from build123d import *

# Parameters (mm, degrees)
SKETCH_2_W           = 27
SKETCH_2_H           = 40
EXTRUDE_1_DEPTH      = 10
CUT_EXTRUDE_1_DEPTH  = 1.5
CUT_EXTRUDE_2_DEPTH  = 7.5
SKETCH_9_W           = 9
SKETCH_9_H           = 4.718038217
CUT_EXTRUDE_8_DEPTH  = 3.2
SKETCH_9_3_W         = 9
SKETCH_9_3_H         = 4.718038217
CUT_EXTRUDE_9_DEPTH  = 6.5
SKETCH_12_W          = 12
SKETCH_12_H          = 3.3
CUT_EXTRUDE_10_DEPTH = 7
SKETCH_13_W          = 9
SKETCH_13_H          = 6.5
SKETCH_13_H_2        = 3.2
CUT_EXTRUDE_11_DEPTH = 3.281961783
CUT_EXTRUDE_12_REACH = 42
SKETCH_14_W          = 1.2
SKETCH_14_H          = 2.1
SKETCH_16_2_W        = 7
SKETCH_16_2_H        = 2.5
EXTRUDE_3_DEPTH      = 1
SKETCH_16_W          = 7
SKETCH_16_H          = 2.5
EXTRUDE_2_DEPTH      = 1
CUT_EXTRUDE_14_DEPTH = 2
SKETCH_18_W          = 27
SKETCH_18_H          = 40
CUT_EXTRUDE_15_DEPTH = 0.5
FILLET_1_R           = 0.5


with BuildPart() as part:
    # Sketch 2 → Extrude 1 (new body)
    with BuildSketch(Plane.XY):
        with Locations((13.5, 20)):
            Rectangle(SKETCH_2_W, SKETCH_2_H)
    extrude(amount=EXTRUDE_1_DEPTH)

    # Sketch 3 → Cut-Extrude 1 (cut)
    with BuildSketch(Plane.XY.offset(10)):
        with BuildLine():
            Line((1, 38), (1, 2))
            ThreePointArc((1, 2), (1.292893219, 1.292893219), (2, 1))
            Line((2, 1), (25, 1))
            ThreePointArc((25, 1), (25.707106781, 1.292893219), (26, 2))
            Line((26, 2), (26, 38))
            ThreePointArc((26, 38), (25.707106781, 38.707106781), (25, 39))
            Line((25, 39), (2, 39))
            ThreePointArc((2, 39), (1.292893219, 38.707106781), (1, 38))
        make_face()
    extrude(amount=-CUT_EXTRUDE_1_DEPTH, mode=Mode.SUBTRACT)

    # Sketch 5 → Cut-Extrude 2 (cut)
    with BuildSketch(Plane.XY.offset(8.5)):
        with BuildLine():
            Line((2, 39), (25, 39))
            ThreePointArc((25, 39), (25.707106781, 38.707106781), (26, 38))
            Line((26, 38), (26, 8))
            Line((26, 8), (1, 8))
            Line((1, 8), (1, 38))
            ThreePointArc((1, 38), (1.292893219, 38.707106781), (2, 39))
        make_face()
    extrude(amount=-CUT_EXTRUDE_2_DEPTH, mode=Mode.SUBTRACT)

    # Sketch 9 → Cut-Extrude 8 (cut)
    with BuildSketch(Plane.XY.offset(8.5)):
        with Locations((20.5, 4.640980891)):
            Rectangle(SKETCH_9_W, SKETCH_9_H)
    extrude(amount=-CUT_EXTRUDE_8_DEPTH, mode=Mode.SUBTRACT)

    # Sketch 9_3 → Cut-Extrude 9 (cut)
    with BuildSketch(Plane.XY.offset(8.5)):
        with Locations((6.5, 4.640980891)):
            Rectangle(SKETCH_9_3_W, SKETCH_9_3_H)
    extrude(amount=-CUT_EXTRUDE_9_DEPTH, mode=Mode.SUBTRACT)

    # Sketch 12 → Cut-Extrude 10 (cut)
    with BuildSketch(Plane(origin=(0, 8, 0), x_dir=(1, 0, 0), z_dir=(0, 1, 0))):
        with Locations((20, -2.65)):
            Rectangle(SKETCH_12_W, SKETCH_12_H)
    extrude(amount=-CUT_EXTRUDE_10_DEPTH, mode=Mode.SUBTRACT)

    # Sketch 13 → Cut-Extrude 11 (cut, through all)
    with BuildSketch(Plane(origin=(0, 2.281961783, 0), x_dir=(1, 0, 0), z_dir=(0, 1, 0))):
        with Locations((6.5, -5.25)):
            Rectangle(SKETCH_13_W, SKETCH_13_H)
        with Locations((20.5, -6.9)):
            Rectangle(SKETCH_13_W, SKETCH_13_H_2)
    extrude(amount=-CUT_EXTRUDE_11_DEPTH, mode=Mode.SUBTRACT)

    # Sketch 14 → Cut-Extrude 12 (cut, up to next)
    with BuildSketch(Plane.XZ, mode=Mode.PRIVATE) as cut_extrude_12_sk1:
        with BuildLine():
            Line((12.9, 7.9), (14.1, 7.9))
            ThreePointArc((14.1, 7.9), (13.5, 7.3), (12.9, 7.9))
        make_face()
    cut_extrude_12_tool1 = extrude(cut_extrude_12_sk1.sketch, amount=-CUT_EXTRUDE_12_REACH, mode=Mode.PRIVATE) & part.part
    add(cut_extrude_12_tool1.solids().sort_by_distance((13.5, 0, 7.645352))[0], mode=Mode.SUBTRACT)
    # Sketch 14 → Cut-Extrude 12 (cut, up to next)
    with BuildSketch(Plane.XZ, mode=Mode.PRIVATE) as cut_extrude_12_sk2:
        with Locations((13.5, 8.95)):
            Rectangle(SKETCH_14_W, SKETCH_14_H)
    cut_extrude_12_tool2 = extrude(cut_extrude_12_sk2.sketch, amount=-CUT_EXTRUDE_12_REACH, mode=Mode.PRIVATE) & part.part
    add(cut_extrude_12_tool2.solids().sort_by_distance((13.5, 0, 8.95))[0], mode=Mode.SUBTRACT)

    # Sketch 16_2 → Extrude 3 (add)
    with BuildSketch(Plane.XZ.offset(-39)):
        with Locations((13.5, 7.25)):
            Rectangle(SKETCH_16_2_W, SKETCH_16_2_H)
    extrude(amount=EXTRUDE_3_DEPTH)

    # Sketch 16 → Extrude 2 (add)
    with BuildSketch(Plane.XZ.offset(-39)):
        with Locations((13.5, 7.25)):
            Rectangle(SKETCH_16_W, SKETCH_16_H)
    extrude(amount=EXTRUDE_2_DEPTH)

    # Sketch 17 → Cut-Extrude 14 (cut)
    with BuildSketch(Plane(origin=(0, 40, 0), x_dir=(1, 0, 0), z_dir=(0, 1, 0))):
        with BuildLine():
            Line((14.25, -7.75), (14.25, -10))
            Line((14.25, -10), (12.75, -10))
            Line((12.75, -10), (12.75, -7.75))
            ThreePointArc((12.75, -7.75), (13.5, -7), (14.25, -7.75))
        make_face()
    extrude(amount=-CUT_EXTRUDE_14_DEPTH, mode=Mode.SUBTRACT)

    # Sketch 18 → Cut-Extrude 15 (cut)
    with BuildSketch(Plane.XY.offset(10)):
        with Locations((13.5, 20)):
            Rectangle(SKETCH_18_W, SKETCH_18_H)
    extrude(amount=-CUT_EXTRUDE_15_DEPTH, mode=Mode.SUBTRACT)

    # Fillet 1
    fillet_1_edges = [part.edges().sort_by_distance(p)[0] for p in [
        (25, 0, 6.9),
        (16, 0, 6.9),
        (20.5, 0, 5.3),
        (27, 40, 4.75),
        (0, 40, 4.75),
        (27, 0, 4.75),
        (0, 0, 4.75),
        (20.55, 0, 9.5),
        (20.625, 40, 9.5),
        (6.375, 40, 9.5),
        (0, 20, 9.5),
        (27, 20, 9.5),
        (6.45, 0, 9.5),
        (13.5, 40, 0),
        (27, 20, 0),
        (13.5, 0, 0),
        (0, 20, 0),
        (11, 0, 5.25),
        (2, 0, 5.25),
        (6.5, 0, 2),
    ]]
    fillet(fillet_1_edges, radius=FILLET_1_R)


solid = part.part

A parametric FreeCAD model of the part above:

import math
import FreeCAD as App
import Part
import Sketcher
Q = App.Units.Quantity


def edges_at(feature, points):
    """Names of the edges that pass closest to the given points."""
    edges = feature.Shape.Edges
    near = lambda p: min(range(len(edges)), key=lambda i: edges[i].distToShape(Part.Vertex(*p))[0])
    return sorted({f"Edge{near(p) + 1}" for p in points})

doc = App.newDocument("Part")
body = doc.addObject("PartDesign::Body", "Body")

# Sketch on XY plane
sketch1 = doc.addObject("Sketcher::SketchObject", "Sketch")
body.addObject(sketch1)
sketch1.AttachmentSupport = (doc.XY_Plane, [""])
sketch1.MapMode = "FlatFace"
sketch1.addGeometry([
    Part.LineSegment(App.Vector(0, 40, 0), App.Vector(0, 0, 0)),
    Part.LineSegment(App.Vector(0, 0, 0), App.Vector(27, 0, 0)),
    Part.LineSegment(App.Vector(27, 0, 0), App.Vector(27, 40, 0)),
    Part.LineSegment(App.Vector(27, 40, 0), App.Vector(0, 40, 0)),
], False)
sketch1.addConstraint([
    Sketcher.Constraint("Coincident", 0, 2, 1, 1),
    Sketcher.Constraint("Coincident", 1, 2, 2, 1),
    Sketcher.Constraint("Coincident", 2, 2, 3, 1),
    Sketcher.Constraint("Coincident", 3, 2, 0, 1),
    Sketcher.Constraint("Vertical", 0),
    Sketcher.Constraint("Horizontal", 1),
    Sketcher.Constraint("Vertical", 2),
    Sketcher.Constraint("Horizontal", 3),
    Sketcher.Constraint("Coincident", 0, 2, -1, 1),
    Sketcher.Constraint("DistanceX", 1, 1, 1, 2, Q("27 mm")),
    Sketcher.Constraint("DistanceY", 0, 2, 0, 1, Q("40 mm")),
])
pad1 = doc.addObject("PartDesign::Pad", "Pad")
body.addObject(pad1)
pad1.Profile = sketch1
pad1.Length = 10

# Sketch on XY plane
sketch2 = doc.addObject("Sketcher::SketchObject", "Sketch001")
body.addObject(sketch2)
sketch2.AttachmentSupport = (doc.XY_Plane, [""])
sketch2.MapMode = "FlatFace"
sketch2.AttachmentOffset = App.Placement(App.Vector(0, 0, 10), App.Rotation())
sketch2.addGeometry([
    Part.LineSegment(App.Vector(1, 38, 0), App.Vector(1, 2, 0)),  # 0
    Part.ArcOfCircle(Part.Circle(App.Vector(2, 2, 0), App.Vector(0, 0, 1), 1), math.radians(-180), math.radians(-90)),  # 1
    Part.LineSegment(App.Vector(2, 1, 0), App.Vector(25, 1, 0)),  # 2
    Part.ArcOfCircle(Part.Circle(App.Vector(25, 2, 0), App.Vector(0, 0, 1), 1), math.radians(-90), math.radians(0)),  # 3
    Part.LineSegment(App.Vector(26, 2, 0), App.Vector(26, 38, 0)),  # 4
    Part.ArcOfCircle(Part.Circle(App.Vector(25, 38, 0), App.Vector(0, 0, 1), 1), math.radians(0), math.radians(90)),  # 5
    Part.LineSegment(App.Vector(25, 39, 0), App.Vector(2, 39, 0)),  # 6
    Part.ArcOfCircle(Part.Circle(App.Vector(2, 38, 0), App.Vector(0, 0, 1), 1), math.radians(90), math.radians(180)),  # 7
], False)
sketch2.addConstraint([
    Sketcher.Constraint("Tangent", 0, 2, 1, 1),
    Sketcher.Constraint("Tangent", 1, 2, 2, 1),
    Sketcher.Constraint("Tangent", 2, 2, 3, 1),
    Sketcher.Constraint("Tangent", 3, 2, 4, 1),
    Sketcher.Constraint("Tangent", 4, 2, 5, 1),
    Sketcher.Constraint("Tangent", 5, 2, 6, 1),
    Sketcher.Constraint("Tangent", 6, 2, 7, 1),
    Sketcher.Constraint("Tangent", 7, 2, 0, 1),
    Sketcher.Constraint("Vertical", 0),
    Sketcher.Constraint("Horizontal", 2),
    Sketcher.Constraint("Vertical", 4),
    Sketcher.Constraint("Horizontal", 6),
    Sketcher.Constraint("Equal", 1, 3),
    Sketcher.Constraint("Equal", 3, 5),
    Sketcher.Constraint("Equal", 5, 7),
    Sketcher.Constraint("Radius", 1, Q("1 mm")),
    Sketcher.Constraint("DistanceX", 2, 1, 2, 2, Q("23 mm")),
    Sketcher.Constraint("DistanceY", 0, 2, 0, 1, Q("36 mm")),
    Sketcher.Constraint("DistanceX", -1, 1, 1, 3, Q("2 mm")),
    Sketcher.Constraint("DistanceY", -1, 1, 1, 3, Q("2 mm")),
])
pocket1 = doc.addObject("PartDesign::Pocket", "Pocket")
body.addObject(pocket1)
pocket1.Profile = sketch2
pocket1.Length = 1.5

# Sketch on XY plane
sketch3 = doc.addObject("Sketcher::SketchObject", "Sketch002")
body.addObject(sketch3)
sketch3.AttachmentSupport = (doc.XY_Plane, [""])
sketch3.MapMode = "FlatFace"
sketch3.AttachmentOffset = App.Placement(App.Vector(0, 0, 8.5), App.Rotation())
sketch3.addGeometry([
    Part.LineSegment(App.Vector(25, 39, 0), App.Vector(2, 39, 0)),  # 0
    Part.ArcOfCircle(Part.Circle(App.Vector(2, 38, 0), App.Vector(0, 0, 1), 1), math.radians(90), math.radians(180)),  # 1
    Part.LineSegment(App.Vector(1, 38, 0), App.Vector(1, 8, 0)),  # 2
    Part.LineSegment(App.Vector(1, 8, 0), App.Vector(26, 8, 0)),  # 3
    Part.LineSegment(App.Vector(26, 8, 0), App.Vector(26, 38, 0)),  # 4
    Part.ArcOfCircle(Part.Circle(App.Vector(25, 38, 0), App.Vector(0, 0, 1), 1), math.radians(0), math.radians(90)),  # 5
], False)
sketch3.addConstraint([
    Sketcher.Constraint("Tangent", 0, 2, 1, 1),
    Sketcher.Constraint("Tangent", 1, 2, 2, 1),
    Sketcher.Constraint("Coincident", 2, 2, 3, 1),
    Sketcher.Constraint("Coincident", 3, 2, 4, 1),
    Sketcher.Constraint("Tangent", 4, 2, 5, 1),
    Sketcher.Constraint("Tangent", 5, 2, 0, 1),
    Sketcher.Constraint("Horizontal", 0),
    Sketcher.Constraint("Vertical", 2),
    Sketcher.Constraint("Horizontal", 3),
    Sketcher.Constraint("Vertical", 4),
    Sketcher.Constraint("Equal", 1, 5),
    Sketcher.Constraint("Radius", 1, Q("1 mm")),
    Sketcher.Constraint("DistanceX", 0, 2, 0, 1, Q("23 mm")),
    Sketcher.Constraint("DistanceY", 2, 2, 2, 1, Q("30 mm")),
    Sketcher.Constraint("DistanceX", -1, 1, 1, 3, Q("2 mm")),
    Sketcher.Constraint("DistanceY", -1, 1, 1, 3, Q("38 mm")),
])
pocket2 = doc.addObject("PartDesign::Pocket", "Pocket001")
body.addObject(pocket2)
pocket2.Profile = sketch3
pocket2.Length = 7.5

# Sketch on XY plane
sketch4 = doc.addObject("Sketcher::SketchObject", "Sketch003")
body.addObject(sketch4)
sketch4.AttachmentSupport = (doc.XY_Plane, [""])
sketch4.MapMode = "FlatFace"
sketch4.AttachmentOffset = App.Placement(App.Vector(0, 0, 8.5), App.Rotation())
sketch4.addGeometry([
    Part.LineSegment(App.Vector(16, 7, 0), App.Vector(16, 2.3, 0)),
    Part.LineSegment(App.Vector(16, 2.3, 0), App.Vector(25, 2.3, 0)),
    Part.LineSegment(App.Vector(25, 2.3, 0), App.Vector(25, 7, 0)),
    Part.LineSegment(App.Vector(25, 7, 0), App.Vector(16, 7, 0)),
], False)
sketch4.addConstraint([
    Sketcher.Constraint("Coincident", 0, 2, 1, 1),
    Sketcher.Constraint("Coincident", 1, 2, 2, 1),
    Sketcher.Constraint("Coincident", 2, 2, 3, 1),
    Sketcher.Constraint("Coincident", 3, 2, 0, 1),
    Sketcher.Constraint("Vertical", 0),
    Sketcher.Constraint("Horizontal", 1),
    Sketcher.Constraint("Vertical", 2),
    Sketcher.Constraint("Horizontal", 3),
    Sketcher.Constraint("DistanceX", 1, 1, 1, 2, Q("9 mm")),
    Sketcher.Constraint("DistanceX", -1, 1, 0, 2, Q("16 mm")),
    Sketcher.Constraint("DistanceY", -1, 1, 2, 2, Q("7 mm")),
    Sketcher.Constraint("DistanceY", 0, 2, 0, 1, Q("4.718038 mm")),
])
pocket3 = doc.addObject("PartDesign::Pocket", "Pocket002")
body.addObject(pocket3)
pocket3.Profile = sketch4
pocket3.Length = 3.2

# Sketch on XY plane
sketch5 = doc.addObject("Sketcher::SketchObject", "Sketch004")
body.addObject(sketch5)
sketch5.AttachmentSupport = (doc.XY_Plane, [""])
sketch5.MapMode = "FlatFace"
sketch5.AttachmentOffset = App.Placement(App.Vector(0, 0, 8.5), App.Rotation())
sketch5.addGeometry([
    Part.LineSegment(App.Vector(2, 7, 0), App.Vector(2, 2.3, 0)),
    Part.LineSegment(App.Vector(2, 2.3, 0), App.Vector(11, 2.3, 0)),
    Part.LineSegment(App.Vector(11, 2.3, 0), App.Vector(11, 7, 0)),
    Part.LineSegment(App.Vector(11, 7, 0), App.Vector(2, 7, 0)),
], False)
sketch5.addConstraint([
    Sketcher.Constraint("Coincident", 0, 2, 1, 1),
    Sketcher.Constraint("Coincident", 1, 2, 2, 1),
    Sketcher.Constraint("Coincident", 2, 2, 3, 1),
    Sketcher.Constraint("Coincident", 3, 2, 0, 1),
    Sketcher.Constraint("Vertical", 0),
    Sketcher.Constraint("Horizontal", 1),
    Sketcher.Constraint("Vertical", 2),
    Sketcher.Constraint("Horizontal", 3),
    Sketcher.Constraint("DistanceX", 1, 1, 1, 2, Q("9 mm")),
    Sketcher.Constraint("DistanceX", -1, 1, 0, 2, Q("2 mm")),
    Sketcher.Constraint("DistanceY", -1, 1, 2, 2, Q("7 mm")),
    Sketcher.Constraint("DistanceY", 0, 2, 0, 1, Q("4.718038 mm")),
])
pocket4 = doc.addObject("PartDesign::Pocket", "Pocket003")
body.addObject(pocket4)
pocket4.Profile = sketch5
pocket4.Length = 6.5

# Sketch on XZ plane
sketch6 = doc.addObject("Sketcher::SketchObject", "Sketch005")
body.addObject(sketch6)
sketch6.AttachmentSupport = (doc.XZ_Plane, [""])
sketch6.MapMode = "FlatFace"
sketch6.AttachmentOffset = App.Placement(App.Vector(0, 0, -8), App.Rotation())
sketch6.addGeometry([
    Part.LineSegment(App.Vector(14, 1, 0), App.Vector(14, 4.3, 0)),
    Part.LineSegment(App.Vector(14, 4.3, 0), App.Vector(26, 4.3, 0)),
    Part.LineSegment(App.Vector(26, 4.3, 0), App.Vector(26, 1, 0)),
    Part.LineSegment(App.Vector(26, 1, 0), App.Vector(14, 1, 0)),
], False)
sketch6.addConstraint([
    Sketcher.Constraint("Coincident", 0, 2, 1, 1),
    Sketcher.Constraint("Coincident", 1, 2, 2, 1),
    Sketcher.Constraint("Coincident", 2, 2, 3, 1),
    Sketcher.Constraint("Coincident", 3, 2, 0, 1),
    Sketcher.Constraint("Vertical", 0),
    Sketcher.Constraint("Horizontal", 1),
    Sketcher.Constraint("Vertical", 2),
    Sketcher.Constraint("Horizontal", 3),
    Sketcher.Constraint("DistanceX", 1, 1, 1, 2, Q("12 mm")),
    Sketcher.Constraint("DistanceY", 0, 1, 0, 2, Q("3.3 mm")),
    Sketcher.Constraint("DistanceX", -1, 1, 0, 2, Q("14 mm")),
    Sketcher.Constraint("DistanceY", -1, 1, 2, 2, Q("1 mm")),
])
pocket5 = doc.addObject("PartDesign::Pocket", "Pocket004")
body.addObject(pocket5)
pocket5.Profile = sketch6
pocket5.Length = 7
pocket5.Reversed = True

# Sketch on XZ plane
sketch7 = doc.addObject("Sketcher::SketchObject", "Sketch006")
body.addObject(sketch7)
sketch7.AttachmentSupport = (doc.XZ_Plane, [""])
sketch7.MapMode = "FlatFace"
sketch7.AttachmentOffset = App.Placement(App.Vector(0, 0, -2.281962), App.Rotation())
sketch7.addGeometry([
    Part.LineSegment(App.Vector(2, 2, 0), App.Vector(2, 8.5, 0)),  # 0
    Part.LineSegment(App.Vector(2, 8.5, 0), App.Vector(11, 8.5, 0)),  # 1
    Part.LineSegment(App.Vector(11, 8.5, 0), App.Vector(11, 2, 0)),  # 2
    Part.LineSegment(App.Vector(11, 2, 0), App.Vector(2, 2, 0)),  # 3
    Part.LineSegment(App.Vector(16, 5.3, 0), App.Vector(16, 8.5, 0)),  # 4
    Part.LineSegment(App.Vector(16, 8.5, 0), App.Vector(25, 8.5, 0)),  # 5
    Part.LineSegment(App.Vector(25, 8.5, 0), App.Vector(25, 5.3, 0)),  # 6
    Part.LineSegment(App.Vector(25, 5.3, 0), App.Vector(16, 5.3, 0)),  # 7
], False)
sketch7.addConstraint([
    Sketcher.Constraint("Coincident", 0, 2, 1, 1),
    Sketcher.Constraint("Coincident", 1, 2, 2, 1),
    Sketcher.Constraint("Coincident", 2, 2, 3, 1),
    Sketcher.Constraint("Coincident", 3, 2, 0, 1),
    Sketcher.Constraint("Coincident", 4, 2, 5, 1),
    Sketcher.Constraint("Coincident", 5, 2, 6, 1),
    Sketcher.Constraint("Coincident", 6, 2, 7, 1),
    Sketcher.Constraint("Coincident", 7, 2, 4, 1),
    Sketcher.Constraint("Vertical", 0),
    Sketcher.Constraint("Horizontal", 1),
    Sketcher.Constraint("Vertical", 2),
    Sketcher.Constraint("Horizontal", 3),
    Sketcher.Constraint("Vertical", 4),
    Sketcher.Constraint("Horizontal", 5),
    Sketcher.Constraint("Vertical", 6),
    Sketcher.Constraint("Horizontal", 7),
    Sketcher.Constraint("Horizontal", 1, 2, 4, 2),
    Sketcher.Constraint("Equal", 3, 5),
    Sketcher.Constraint("DistanceX", 1, 1, 1, 2, Q("9 mm")),
    Sketcher.Constraint("DistanceY", 0, 1, 0, 2, Q("6.5 mm")),
    Sketcher.Constraint("DistanceY", 4, 1, 4, 2, Q("3.2 mm")),
    Sketcher.Constraint("DistanceX", -1, 1, 0, 2, Q("2 mm")),
    Sketcher.Constraint("DistanceY", -1, 1, 2, 2, Q("2 mm")),
    Sketcher.Constraint("DistanceX", -1, 1, 4, 2, Q("16 mm")),
])
pocket6 = doc.addObject("PartDesign::Pocket", "Pocket005")
body.addObject(pocket6)
pocket6.Profile = sketch7
pocket6.Type = "ThroughAll"
pocket6.Reversed = True

# Sketch on XZ plane
sketch8 = doc.addObject("Sketcher::SketchObject", "Sketch007")
body.addObject(sketch8)
sketch8.AttachmentSupport = (doc.XZ_Plane, [""])
sketch8.MapMode = "FlatFace"
sketch8.addGeometry([
    Part.LineSegment(App.Vector(14.1, 7.9, 0), App.Vector(12.9, 7.9, 0)),
    Part.ArcOfCircle(Part.Circle(App.Vector(13.5, 7.9, 0), App.Vector(0, 0, 1), 0.6), math.radians(180), math.radians(360)),
], False)
sketch8.addConstraint([
    Sketcher.Constraint("Coincident", 0, 1, 1, 2),
    Sketcher.Constraint("Coincident", 1, 1, 0, 2),
    Sketcher.Constraint("Horizontal", 0),
    Sketcher.Constraint("Horizontal", 1, 3, 0, 1),
    Sketcher.Constraint("Radius", 1, Q("0.6 mm")),
    Sketcher.Constraint("DistanceX", -1, 1, 1, 3, Q("13.5 mm")),
    Sketcher.Constraint("DistanceY", -1, 1, 1, 3, Q("7.9 mm")),
])
pocket7 = doc.addObject("PartDesign::Pocket", "Pocket006")
body.addObject(pocket7)
pocket7.Profile = sketch8
pocket7.Type = "UpToFirst"

# Sketch on XZ plane
sketch9 = doc.addObject("Sketcher::SketchObject", "Sketch008")
body.addObject(sketch9)
sketch9.AttachmentSupport = (doc.XZ_Plane, [""])
sketch9.MapMode = "FlatFace"
sketch9.addGeometry([
    Part.LineSegment(App.Vector(12.9, 10, 0), App.Vector(12.9, 7.9, 0)),
    Part.LineSegment(App.Vector(12.9, 7.9, 0), App.Vector(14.1, 7.9, 0)),
    Part.LineSegment(App.Vector(14.1, 7.9, 0), App.Vector(14.1, 10, 0)),
    Part.LineSegment(App.Vector(14.1, 10, 0), App.Vector(12.9, 10, 0)),
], False)
sketch9.addConstraint([
    Sketcher.Constraint("Coincident", 0, 2, 1, 1),
    Sketcher.Constraint("Coincident", 1, 2, 2, 1),
    Sketcher.Constraint("Coincident", 2, 2, 3, 1),
    Sketcher.Constraint("Coincident", 3, 2, 0, 1),
    Sketcher.Constraint("Vertical", 0),
    Sketcher.Constraint("Horizontal", 1),
    Sketcher.Constraint("Vertical", 2),
    Sketcher.Constraint("Horizontal", 3),
    Sketcher.Constraint("DistanceX", 1, 1, 1, 2, Q("1.2 mm")),
    Sketcher.Constraint("DistanceY", 0, 2, 0, 1, Q("2.1 mm")),
    Sketcher.Constraint("DistanceY", -1, 1, 2, 2, Q("10 mm")),
    Sketcher.Constraint("DistanceX", -1, 1, 0, 2, Q("12.9 mm")),
])
pocket8 = doc.addObject("PartDesign::Pocket", "Pocket007")
body.addObject(pocket8)
pocket8.Profile = sketch9
pocket8.Length = 8

# Sketch on XZ plane
sketch10 = doc.addObject("Sketcher::SketchObject", "Sketch009")
body.addObject(sketch10)
sketch10.AttachmentSupport = (doc.XZ_Plane, [""])
sketch10.MapMode = "FlatFace"
sketch10.AttachmentOffset = App.Placement(App.Vector(0, 0, -39), App.Rotation())
sketch10.addGeometry([
    Part.LineSegment(App.Vector(10, 8.5, 0), App.Vector(10, 6, 0)),
    Part.LineSegment(App.Vector(10, 6, 0), App.Vector(17, 6, 0)),
    Part.LineSegment(App.Vector(17, 6, 0), App.Vector(17, 8.5, 0)),
    Part.LineSegment(App.Vector(17, 8.5, 0), App.Vector(10, 8.5, 0)),
], False)
sketch10.addConstraint([
    Sketcher.Constraint("Coincident", 0, 2, 1, 1),
    Sketcher.Constraint("Coincident", 1, 2, 2, 1),
    Sketcher.Constraint("Coincident", 2, 2, 3, 1),
    Sketcher.Constraint("Coincident", 3, 2, 0, 1),
    Sketcher.Constraint("Vertical", 0),
    Sketcher.Constraint("Horizontal", 1),
    Sketcher.Constraint("Vertical", 2),
    Sketcher.Constraint("Horizontal", 3),
    Sketcher.Constraint("DistanceX", 1, 1, 1, 2, Q("7 mm")),
    Sketcher.Constraint("DistanceY", 0, 2, 0, 1, Q("2.5 mm")),
    Sketcher.Constraint("DistanceX", -1, 1, 0, 2, Q("10 mm")),
    Sketcher.Constraint("DistanceY", -1, 1, 0, 2, Q("6 mm")),
])
pad2 = doc.addObject("PartDesign::Pad", "Pad001")
body.addObject(pad2)
pad2.Profile = sketch10
pad2.Length = 1

# Sketch on XZ plane
sketch11 = doc.addObject("Sketcher::SketchObject", "Sketch010")
body.addObject(sketch11)
sketch11.AttachmentSupport = (doc.XZ_Plane, [""])
sketch11.MapMode = "FlatFace"
sketch11.AttachmentOffset = App.Placement(App.Vector(0, 0, -39), App.Rotation())
sketch11.addGeometry([
    Part.LineSegment(App.Vector(10, 8.5, 0), App.Vector(10, 6, 0)),
    Part.LineSegment(App.Vector(10, 6, 0), App.Vector(17, 6, 0)),
    Part.LineSegment(App.Vector(17, 6, 0), App.Vector(17, 8.5, 0)),
    Part.LineSegment(App.Vector(17, 8.5, 0), App.Vector(10, 8.5, 0)),
], False)
sketch11.addConstraint([
    Sketcher.Constraint("Coincident", 0, 2, 1, 1),
    Sketcher.Constraint("Coincident", 1, 2, 2, 1),
    Sketcher.Constraint("Coincident", 2, 2, 3, 1),
    Sketcher.Constraint("Coincident", 3, 2, 0, 1),
    Sketcher.Constraint("Vertical", 0),
    Sketcher.Constraint("Horizontal", 1),
    Sketcher.Constraint("Vertical", 2),
    Sketcher.Constraint("Horizontal", 3),
    Sketcher.Constraint("DistanceX", 1, 1, 1, 2, Q("7 mm")),
    Sketcher.Constraint("DistanceY", 0, 2, 0, 1, Q("2.5 mm")),
    Sketcher.Constraint("DistanceX", -1, 1, 0, 2, Q("10 mm")),
    Sketcher.Constraint("DistanceY", -1, 1, 0, 2, Q("6 mm")),
])
pad3 = doc.addObject("PartDesign::Pad", "Pad002")
body.addObject(pad3)
pad3.Profile = sketch11
pad3.Length = 1

# Sketch on XZ plane
sketch12 = doc.addObject("Sketcher::SketchObject", "Sketch011")
body.addObject(sketch12)
sketch12.AttachmentSupport = (doc.XZ_Plane, [""])
sketch12.MapMode = "FlatFace"
sketch12.AttachmentOffset = App.Placement(App.Vector(0, 0, -40), App.Rotation())
sketch12.addGeometry([
    Part.LineSegment(App.Vector(14.2, 10, 0), App.Vector(14.2, 7.8, 0)),
    Part.ArcOfCircle(Part.Circle(App.Vector(13.5, 7.8, 0), App.Vector(0, 0, 1), 0.8), math.radians(180), math.radians(360)),
    Part.LineSegment(App.Vector(12.8, 7.8, 0), App.Vector(12.8, 10, 0)),
    Part.LineSegment(App.Vector(12.8, 10, 0), App.Vector(14.2, 10, 0)),
], False)
sketch12.addConstraint([
    Sketcher.Constraint("Tangent", 0, 2, 1, 2),
    Sketcher.Constraint("Tangent", 1, 1, 2, 1),
    Sketcher.Constraint("Coincident", 2, 2, 3, 1),
    Sketcher.Constraint("Coincident", 3, 2, 0, 1),
    Sketcher.Constraint("Vertical", 0),
    Sketcher.Constraint("Vertical", 2),
    Sketcher.Constraint("Horizontal", 3),
    Sketcher.Constraint("Radius", 1, Q("0.75 mm")),
    Sketcher.Constraint("DistanceY", -1, 1, 2, 2, Q("10 mm")),
    Sketcher.Constraint("DistanceY", 0, 2, 0, 1, Q("2.25 mm")),
    Sketcher.Constraint("DistanceX", -1, 1, 1, 3, Q("13.5 mm")),
])
pocket9 = doc.addObject("PartDesign::Pocket", "Pocket008")
body.addObject(pocket9)
pocket9.Profile = sketch12
pocket9.Length = 2
pocket9.Reversed = True

# Sketch on XY plane
sketch13 = doc.addObject("Sketcher::SketchObject", "Sketch012")
body.addObject(sketch13)
sketch13.AttachmentSupport = (doc.XY_Plane, [""])
sketch13.MapMode = "FlatFace"
sketch13.AttachmentOffset = App.Placement(App.Vector(0, 0, 10), App.Rotation())
sketch13.addGeometry([
    Part.LineSegment(App.Vector(0, 40, 0), App.Vector(0, 0, 0)),
    Part.LineSegment(App.Vector(0, 0, 0), App.Vector(27, 0, 0)),
    Part.LineSegment(App.Vector(27, 0, 0), App.Vector(27, 40, 0)),
    Part.LineSegment(App.Vector(27, 40, 0), App.Vector(0, 40, 0)),
], False)
sketch13.addConstraint([
    Sketcher.Constraint("Coincident", 0, 2, 1, 1),
    Sketcher.Constraint("Coincident", 1, 2, 2, 1),
    Sketcher.Constraint("Coincident", 2, 2, 3, 1),
    Sketcher.Constraint("Coincident", 3, 2, 0, 1),
    Sketcher.Constraint("Vertical", 0),
    Sketcher.Constraint("Horizontal", 1),
    Sketcher.Constraint("Vertical", 2),
    Sketcher.Constraint("Horizontal", 3),
    Sketcher.Constraint("Coincident", 0, 2, -1, 1),
    Sketcher.Constraint("DistanceX", 1, 1, 1, 2, Q("27 mm")),
    Sketcher.Constraint("DistanceY", 0, 2, 0, 1, Q("40 mm")),
])
pocket10 = doc.addObject("PartDesign::Pocket", "Pocket009")
body.addObject(pocket10)
pocket10.Profile = sketch13
pocket10.Length = 0.5
doc.recompute()

fillet = doc.addObject("PartDesign::Fillet", "Fillet")
body.addObject(fillet)
fillet.Base = (pocket10, edges_at(pocket10, [
    (25, 0, 6.9),
    (16, 0, 6.9),
    (20.5, 0, 5.3),
    (27, 40, 4.75),
    (0, 40, 4.75),
    (27, 0, 4.75),
    (0, 0, 4.75),
    (20.55, 0, 9.5),
    (20.625, 40, 9.5),
    (6.375, 40, 9.5),
    (0, 20, 9.5),
    (27, 20, 9.5),
    (6.45, 0, 9.5),
    (13.5, 40, 0),
    (27, 20, 0),
    (13.5, 0, 0),
    (0, 20, 0),
    (11, 0, 5.25),
    (2, 0, 5.25),
    (6.5, 0, 2),
]))
fillet.Radius = 0.5

doc.recompute()
